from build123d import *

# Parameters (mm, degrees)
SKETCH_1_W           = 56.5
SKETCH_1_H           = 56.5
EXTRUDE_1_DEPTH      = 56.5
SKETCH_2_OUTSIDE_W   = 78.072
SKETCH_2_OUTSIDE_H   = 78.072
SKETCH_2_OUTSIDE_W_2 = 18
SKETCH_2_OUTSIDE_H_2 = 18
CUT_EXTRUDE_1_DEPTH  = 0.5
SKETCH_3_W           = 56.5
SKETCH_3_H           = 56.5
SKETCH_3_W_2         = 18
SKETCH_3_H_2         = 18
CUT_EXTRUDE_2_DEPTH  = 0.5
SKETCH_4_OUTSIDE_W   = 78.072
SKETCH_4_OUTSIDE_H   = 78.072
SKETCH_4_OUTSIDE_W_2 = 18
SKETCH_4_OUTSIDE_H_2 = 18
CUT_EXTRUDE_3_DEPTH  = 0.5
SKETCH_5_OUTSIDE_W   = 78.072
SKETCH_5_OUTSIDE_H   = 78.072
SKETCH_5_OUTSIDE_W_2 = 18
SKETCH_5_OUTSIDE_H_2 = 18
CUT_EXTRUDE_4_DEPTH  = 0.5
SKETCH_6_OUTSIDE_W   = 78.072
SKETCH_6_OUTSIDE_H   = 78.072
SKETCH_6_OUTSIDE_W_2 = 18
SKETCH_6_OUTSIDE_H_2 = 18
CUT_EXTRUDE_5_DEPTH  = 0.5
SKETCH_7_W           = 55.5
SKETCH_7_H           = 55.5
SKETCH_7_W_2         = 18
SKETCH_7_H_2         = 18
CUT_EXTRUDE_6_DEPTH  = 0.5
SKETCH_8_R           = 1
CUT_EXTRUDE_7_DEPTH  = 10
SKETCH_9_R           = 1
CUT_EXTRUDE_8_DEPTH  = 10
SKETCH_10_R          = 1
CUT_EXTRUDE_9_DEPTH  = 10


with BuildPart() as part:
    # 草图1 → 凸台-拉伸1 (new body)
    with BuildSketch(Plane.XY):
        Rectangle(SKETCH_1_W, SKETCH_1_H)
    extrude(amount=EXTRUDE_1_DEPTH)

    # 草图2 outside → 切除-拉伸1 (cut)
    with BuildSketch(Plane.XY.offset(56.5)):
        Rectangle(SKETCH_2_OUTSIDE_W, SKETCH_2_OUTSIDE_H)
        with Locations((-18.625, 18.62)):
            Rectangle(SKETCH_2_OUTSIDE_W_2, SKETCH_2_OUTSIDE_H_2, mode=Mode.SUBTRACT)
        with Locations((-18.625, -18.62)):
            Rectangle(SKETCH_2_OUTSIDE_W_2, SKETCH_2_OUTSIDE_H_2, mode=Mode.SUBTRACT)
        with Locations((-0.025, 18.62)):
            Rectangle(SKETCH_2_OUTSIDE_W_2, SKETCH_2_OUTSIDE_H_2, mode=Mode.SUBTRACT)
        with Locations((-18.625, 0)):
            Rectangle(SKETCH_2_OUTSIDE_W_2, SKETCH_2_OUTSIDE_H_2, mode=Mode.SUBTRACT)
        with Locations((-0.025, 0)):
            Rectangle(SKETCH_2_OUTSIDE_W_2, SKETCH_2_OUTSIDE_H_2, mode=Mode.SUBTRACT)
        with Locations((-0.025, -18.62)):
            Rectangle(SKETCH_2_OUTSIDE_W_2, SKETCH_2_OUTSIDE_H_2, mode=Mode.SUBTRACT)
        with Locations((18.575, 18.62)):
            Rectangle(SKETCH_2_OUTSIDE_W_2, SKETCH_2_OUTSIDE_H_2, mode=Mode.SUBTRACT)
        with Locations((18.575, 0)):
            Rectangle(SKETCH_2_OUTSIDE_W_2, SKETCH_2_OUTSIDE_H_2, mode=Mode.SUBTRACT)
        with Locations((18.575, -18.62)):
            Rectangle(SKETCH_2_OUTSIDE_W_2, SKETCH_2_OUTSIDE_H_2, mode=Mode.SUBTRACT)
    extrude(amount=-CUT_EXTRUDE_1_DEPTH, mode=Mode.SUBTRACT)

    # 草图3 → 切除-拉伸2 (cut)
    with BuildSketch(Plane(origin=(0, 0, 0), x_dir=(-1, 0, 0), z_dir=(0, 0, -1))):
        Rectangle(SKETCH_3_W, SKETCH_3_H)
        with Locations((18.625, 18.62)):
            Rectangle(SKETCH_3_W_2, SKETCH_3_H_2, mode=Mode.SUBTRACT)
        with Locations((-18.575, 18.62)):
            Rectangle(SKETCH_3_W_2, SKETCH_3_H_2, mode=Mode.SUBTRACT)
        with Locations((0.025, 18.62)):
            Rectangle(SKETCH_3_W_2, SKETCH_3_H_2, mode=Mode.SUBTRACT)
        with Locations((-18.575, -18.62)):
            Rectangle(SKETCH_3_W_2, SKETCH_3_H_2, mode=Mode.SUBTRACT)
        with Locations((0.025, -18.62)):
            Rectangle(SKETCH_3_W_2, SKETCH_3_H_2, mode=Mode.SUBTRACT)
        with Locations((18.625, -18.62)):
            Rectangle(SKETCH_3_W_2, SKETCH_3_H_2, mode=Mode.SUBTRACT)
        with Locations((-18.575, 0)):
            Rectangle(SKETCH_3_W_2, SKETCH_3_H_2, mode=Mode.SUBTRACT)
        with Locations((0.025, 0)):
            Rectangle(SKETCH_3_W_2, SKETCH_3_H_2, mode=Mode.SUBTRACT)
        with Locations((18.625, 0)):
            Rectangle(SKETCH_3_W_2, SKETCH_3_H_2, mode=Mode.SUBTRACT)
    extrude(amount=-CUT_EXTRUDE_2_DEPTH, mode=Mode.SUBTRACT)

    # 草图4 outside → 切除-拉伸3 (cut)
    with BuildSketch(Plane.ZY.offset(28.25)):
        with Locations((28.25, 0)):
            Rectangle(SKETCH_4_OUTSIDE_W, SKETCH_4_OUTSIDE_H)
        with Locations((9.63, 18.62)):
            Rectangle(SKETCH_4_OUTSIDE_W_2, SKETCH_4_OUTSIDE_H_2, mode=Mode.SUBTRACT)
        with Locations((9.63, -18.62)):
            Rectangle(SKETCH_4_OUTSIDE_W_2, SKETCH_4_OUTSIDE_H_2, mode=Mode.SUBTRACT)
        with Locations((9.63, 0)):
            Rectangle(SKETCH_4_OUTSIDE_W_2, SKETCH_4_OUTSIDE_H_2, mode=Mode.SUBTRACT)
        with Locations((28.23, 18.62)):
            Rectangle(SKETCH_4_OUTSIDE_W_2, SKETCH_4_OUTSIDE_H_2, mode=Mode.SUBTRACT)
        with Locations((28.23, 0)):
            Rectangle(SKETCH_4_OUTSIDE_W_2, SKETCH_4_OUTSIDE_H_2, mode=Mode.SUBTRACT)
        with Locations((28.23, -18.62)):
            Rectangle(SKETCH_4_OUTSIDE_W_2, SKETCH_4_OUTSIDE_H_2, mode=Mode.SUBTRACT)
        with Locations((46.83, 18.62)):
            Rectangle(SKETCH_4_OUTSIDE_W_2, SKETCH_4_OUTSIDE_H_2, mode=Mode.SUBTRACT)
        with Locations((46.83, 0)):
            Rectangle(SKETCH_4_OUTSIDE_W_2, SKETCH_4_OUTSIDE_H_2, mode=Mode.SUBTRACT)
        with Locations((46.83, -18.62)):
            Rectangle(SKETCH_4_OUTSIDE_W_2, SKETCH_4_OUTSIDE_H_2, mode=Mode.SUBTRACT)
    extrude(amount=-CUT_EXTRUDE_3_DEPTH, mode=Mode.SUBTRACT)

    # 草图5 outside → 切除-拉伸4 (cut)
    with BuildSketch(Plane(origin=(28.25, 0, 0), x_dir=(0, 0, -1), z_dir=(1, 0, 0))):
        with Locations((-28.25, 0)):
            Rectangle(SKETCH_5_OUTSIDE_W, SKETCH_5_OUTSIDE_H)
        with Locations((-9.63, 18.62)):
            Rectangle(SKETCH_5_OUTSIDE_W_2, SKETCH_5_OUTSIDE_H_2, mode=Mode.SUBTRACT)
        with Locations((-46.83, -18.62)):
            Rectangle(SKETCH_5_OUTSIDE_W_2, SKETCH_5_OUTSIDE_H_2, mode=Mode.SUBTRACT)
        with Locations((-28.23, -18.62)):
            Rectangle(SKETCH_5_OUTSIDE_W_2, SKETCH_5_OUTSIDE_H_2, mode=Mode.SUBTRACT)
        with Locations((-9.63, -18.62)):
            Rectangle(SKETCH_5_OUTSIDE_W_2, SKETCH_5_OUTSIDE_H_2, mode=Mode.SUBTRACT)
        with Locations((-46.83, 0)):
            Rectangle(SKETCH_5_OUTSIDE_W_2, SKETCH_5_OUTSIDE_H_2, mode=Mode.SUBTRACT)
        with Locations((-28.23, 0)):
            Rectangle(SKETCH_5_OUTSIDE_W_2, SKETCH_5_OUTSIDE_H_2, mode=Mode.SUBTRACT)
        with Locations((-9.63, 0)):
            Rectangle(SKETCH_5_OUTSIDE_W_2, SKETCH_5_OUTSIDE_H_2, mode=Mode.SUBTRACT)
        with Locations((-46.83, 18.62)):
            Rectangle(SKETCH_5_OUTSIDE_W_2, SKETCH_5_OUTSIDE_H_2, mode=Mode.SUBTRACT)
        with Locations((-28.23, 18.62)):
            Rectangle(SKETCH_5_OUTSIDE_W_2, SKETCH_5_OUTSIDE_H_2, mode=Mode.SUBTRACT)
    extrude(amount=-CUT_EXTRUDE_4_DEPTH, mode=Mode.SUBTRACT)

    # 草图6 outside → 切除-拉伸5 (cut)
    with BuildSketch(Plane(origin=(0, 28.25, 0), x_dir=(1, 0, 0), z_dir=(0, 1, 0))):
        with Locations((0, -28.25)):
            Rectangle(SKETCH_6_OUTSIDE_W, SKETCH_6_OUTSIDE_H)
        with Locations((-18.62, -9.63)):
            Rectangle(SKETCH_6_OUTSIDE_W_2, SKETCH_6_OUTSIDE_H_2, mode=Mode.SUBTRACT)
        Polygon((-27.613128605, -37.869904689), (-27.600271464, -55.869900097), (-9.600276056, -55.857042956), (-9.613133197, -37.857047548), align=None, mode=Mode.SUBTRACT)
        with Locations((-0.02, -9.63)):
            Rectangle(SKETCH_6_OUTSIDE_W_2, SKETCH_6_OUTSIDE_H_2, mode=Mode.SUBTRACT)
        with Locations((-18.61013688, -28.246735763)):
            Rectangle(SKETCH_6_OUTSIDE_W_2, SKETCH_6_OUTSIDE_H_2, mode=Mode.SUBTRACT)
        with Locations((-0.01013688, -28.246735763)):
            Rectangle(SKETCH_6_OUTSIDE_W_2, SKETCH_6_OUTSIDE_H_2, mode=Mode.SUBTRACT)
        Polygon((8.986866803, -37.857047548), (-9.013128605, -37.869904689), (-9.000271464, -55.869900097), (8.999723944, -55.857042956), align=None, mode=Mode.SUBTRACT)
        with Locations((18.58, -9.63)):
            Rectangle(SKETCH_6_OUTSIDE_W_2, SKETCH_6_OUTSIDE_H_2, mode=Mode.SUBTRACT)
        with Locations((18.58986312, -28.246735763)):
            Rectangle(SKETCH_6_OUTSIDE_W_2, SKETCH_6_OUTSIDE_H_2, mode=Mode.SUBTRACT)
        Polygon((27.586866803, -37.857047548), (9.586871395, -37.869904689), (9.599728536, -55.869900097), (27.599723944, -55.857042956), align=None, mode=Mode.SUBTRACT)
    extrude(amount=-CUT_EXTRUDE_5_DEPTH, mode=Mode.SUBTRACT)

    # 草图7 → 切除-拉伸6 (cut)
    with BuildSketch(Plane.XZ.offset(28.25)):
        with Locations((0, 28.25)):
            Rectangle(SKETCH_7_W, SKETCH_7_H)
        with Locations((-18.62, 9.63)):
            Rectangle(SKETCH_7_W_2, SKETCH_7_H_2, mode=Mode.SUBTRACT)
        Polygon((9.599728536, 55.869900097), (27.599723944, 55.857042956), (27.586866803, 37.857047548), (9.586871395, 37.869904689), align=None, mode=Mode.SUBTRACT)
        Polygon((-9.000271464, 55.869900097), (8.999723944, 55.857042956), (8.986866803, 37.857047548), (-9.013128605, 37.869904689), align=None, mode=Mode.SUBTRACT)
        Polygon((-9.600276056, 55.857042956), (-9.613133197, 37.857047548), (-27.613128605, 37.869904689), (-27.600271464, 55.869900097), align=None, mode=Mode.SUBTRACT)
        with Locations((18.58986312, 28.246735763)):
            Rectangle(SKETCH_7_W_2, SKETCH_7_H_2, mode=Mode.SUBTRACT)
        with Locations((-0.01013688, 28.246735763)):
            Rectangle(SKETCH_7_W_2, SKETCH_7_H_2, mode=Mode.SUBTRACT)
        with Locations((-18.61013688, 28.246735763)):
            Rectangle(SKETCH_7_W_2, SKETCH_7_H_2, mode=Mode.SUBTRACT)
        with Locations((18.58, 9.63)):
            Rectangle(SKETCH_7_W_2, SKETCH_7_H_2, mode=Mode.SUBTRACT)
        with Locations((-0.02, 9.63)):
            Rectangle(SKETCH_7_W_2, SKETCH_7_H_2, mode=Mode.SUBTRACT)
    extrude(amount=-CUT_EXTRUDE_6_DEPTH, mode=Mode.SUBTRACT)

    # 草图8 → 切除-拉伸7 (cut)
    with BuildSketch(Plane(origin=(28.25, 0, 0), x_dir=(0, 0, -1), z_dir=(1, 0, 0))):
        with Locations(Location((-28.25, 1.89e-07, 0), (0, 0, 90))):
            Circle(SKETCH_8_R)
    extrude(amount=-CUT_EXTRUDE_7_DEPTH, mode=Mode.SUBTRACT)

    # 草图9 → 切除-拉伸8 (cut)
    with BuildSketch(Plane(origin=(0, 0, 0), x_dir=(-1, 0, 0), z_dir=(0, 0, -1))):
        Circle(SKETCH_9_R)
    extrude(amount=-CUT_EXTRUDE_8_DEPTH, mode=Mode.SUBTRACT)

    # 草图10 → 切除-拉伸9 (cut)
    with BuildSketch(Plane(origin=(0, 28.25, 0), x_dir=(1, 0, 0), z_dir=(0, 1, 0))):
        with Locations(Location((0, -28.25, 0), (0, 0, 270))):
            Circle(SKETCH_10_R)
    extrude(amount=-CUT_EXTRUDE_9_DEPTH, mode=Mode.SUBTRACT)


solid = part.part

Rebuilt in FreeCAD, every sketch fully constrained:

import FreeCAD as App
import Part
import Sketcher
from FreeCAD import Vector
Q = App.Units.Quantity


def add_polygon(sketch, points):
    """Adds a closed chain of lines whose ends are joined by coincident constraints."""
    first, n = sketch.GeometryCount, len(points)
    for a, b in zip(points, points[1:] + points[:1]):
        sketch.addGeometry(Part.LineSegment(App.Vector(*a, 0), App.Vector(*b, 0)), False)
    for i in range(n):
        sketch.addConstraint(Sketcher.Constraint("Coincident", first + i, 2, first + (i + 1) % n, 1))

doc = App.newDocument("Part")
body = doc.addObject("PartDesign::Body", "Body")

# Sketch on XY plane
sketch1 = body.newObject("Sketcher::SketchObject", "Sketch")
sketch1.AttachmentSupport = (doc.getObject("XY_Plane"), [""])
sketch1.MapMode = "FlatFace"
add_polygon(sketch1, [(-28, 28), (-28, -28), (28, -28), (28, 28)])  # lines 0-3
sketch1.addConstraint([
    Sketcher.Constraint("Vertical", 0),
    Sketcher.Constraint("Horizontal", 1),
    Sketcher.Constraint("Vertical", 2),
    Sketcher.Constraint("Horizontal", 3),
    Sketcher.Constraint("Symmetric", 0, 2, 2, 2, -1, 1),
    Sketcher.Constraint("Equal", 3, 0),
    Sketcher.Constraint("DistanceX", 1, 1, 1, 2, Q("56.5 mm")),
])
pad1 = body.newObject("PartDesign::Pad", "Pad")
pad1.Profile = sketch1
pad1.Length = 56.5

# Sketch on XY plane
sketch2 = body.newObject("Sketcher::SketchObject", "Sketch001")
sketch2.AttachmentSupport = (doc.getObject("XY_Plane"), [""])
sketch2.MapMode = "FlatFace"
sketch2.AttachmentOffset = App.Placement(Vector(0, 0, 56.5), App.Rotation())
add_polygon(sketch2, [(-39, 39), (-39, -39), (39, -39), (39, 39)])  # lines 0-3
add_polygon(sketch2, [(-10, -28), (-28, -28), (-28, -10), (-10, -10)])  # lines 4-7
add_polygon(sketch2, [(-10, -9), (-28, -9), (-28, 9), (-10, 9)])  # lines 8-11
add_polygon(sketch2, [(9, -28), (-9, -28), (-9, -10), (9, -10)])  # lines 12-15
add_polygon(sketch2, [(28, -28), (10, -28), (10, -10), (28, -10)])  # lines 16-19
add_polygon(sketch2, [(9, -9), (-9, -9), (-9, 9), (9, 9)])  # lines 20-23
add_polygon(sketch2, [(28, -9), (10, -9), (10, 9), (28, 9)])  # lines 24-27
add_polygon(sketch2, [(-10, 10), (-28, 10), (-28, 28), (-10, 28)])  # lines 28-31
add_polygon(sketch2, [(9, 10), (-9, 10), (-9, 28), (9, 28)])  # lines 32-35
add_polygon(sketch2, [(28, 10), (10, 10), (10, 28), (28, 28)])  # lines 36-39
sketch2.addConstraint([
    Sketcher.Constraint("Vertical", 0),
    Sketcher.Constraint("Horizontal", 1),
    Sketcher.Constraint("Vertical", 2),
    Sketcher.Constraint("Horizontal", 3),
    Sketcher.Constraint("Horizontal", 4),
    Sketcher.Constraint("Vertical", 5),
    Sketcher.Constraint("Horizontal", 6),
    Sketcher.Constraint("Vertical", 7),
    Sketcher.Constraint("Horizontal", 8),
    Sketcher.Constraint("Vertical", 9),
    Sketcher.Constraint("Horizontal", 10),
    Sketcher.Constraint("Vertical", 11),
    Sketcher.Constraint("Horizontal", 12),
    Sketcher.Constraint("Vertical", 13),
    Sketcher.Constraint("Horizontal", 14),
    Sketcher.Constraint("Vertical", 15),
    Sketcher.Constraint("Horizontal", 16),
    Sketcher.Constraint("Vertical", 17),
    Sketcher.Constraint("Horizontal", 18),
    Sketcher.Constraint("Vertical", 19),
    Sketcher.Constraint("Horizontal", 20),
    Sketcher.Constraint("Vertical", 21),
    Sketcher.Constraint("Horizontal", 22),
    Sketcher.Constraint("Vertical", 23),
    Sketcher.Constraint("Horizontal", 24),
    Sketcher.Constraint("Vertical", 25),
    Sketcher.Constraint("Horizontal", 26),
    Sketcher.Constraint("Vertical", 27),
    Sketcher.Constraint("Horizontal", 28),
    Sketcher.Constraint("Vertical", 29),
    Sketcher.Constraint("Horizontal", 30),
    Sketcher.Constraint("Vertical", 31),
    Sketcher.Constraint("Horizontal", 32),
    Sketcher.Constraint("Vertical", 33),
    Sketcher.Constraint("Horizontal", 34),
    Sketcher.Constraint("Vertical", 35),
    Sketcher.Constraint("Horizontal", 36),
    Sketcher.Constraint("Vertical", 37),
    Sketcher.Constraint("Horizontal", 38),
    Sketcher.Constraint("Vertical", 39),
    Sketcher.Constraint("Symmetric", 0, 2, 2, 2, -1, 1),
    Sketcher.Constraint("Symmetric", 5, 2, 28, 2, -1),
    Sketcher.Constraint("Symmetric", 7, 2, 30, 2, -1),
    Sketcher.Constraint("Symmetric", 13, 2, 32, 2, -1),
    Sketcher.Constraint("Symmetric", 15, 2, 34, 2, -1),
    Sketcher.Constraint("Symmetric", 17, 2, 36, 2, -1),
    Sketcher.Constraint("Symmetric", 19, 2, 38, 2, -1),
    Sketcher.Constraint("Horizontal", 7, 2, 12, 2),
    Sketcher.Constraint("Horizontal", 6, 2, 13, 2),
    Sketcher.Constraint("Horizontal", 15, 2, 16, 2),
    Sketcher.Constraint("Horizontal", 14, 2, 17, 2),
    Sketcher.Constraint("Horizontal", 11, 2, 20, 2),
    Sketcher.Constraint("Horizontal", 10, 2, 21, 2),
    Sketcher.Constraint("Horizontal", 23, 2, 24, 2),
    Sketcher.Constraint("Horizontal", 22, 2, 25, 2),
    Sketcher.Constraint("Vertical", 5, 2, 8, 2),
    Sketcher.Constraint("Vertical", 7, 2, 10, 2),
    Sketcher.Constraint("Vertical", 13, 2, 20, 2),
    Sketcher.Constraint("Vertical", 15, 2, 22, 2),
    Sketcher.Constraint("Vertical", 17, 2, 24, 2),
    Sketcher.Constraint("Vertical", 19, 2, 26, 2),
    Sketcher.Constraint("Equal", 10, 12),
    Sketcher.Constraint("Equal", 14, 16),
    Sketcher.Constraint("Equal", 3, 0),
    Sketcher.Constraint("Equal", 38, 5),
    Sketcher.Constraint("Equal", 7, 9),
    Sketcher.Constraint("DistanceX", 4, 2, 4, 1, Q("18 mm")),
    Sketcher.Constraint("DistanceY", 8, 2, -1, 1, Q("9 mm")),
    Sketcher.Constraint("DistanceX", 7, 2, 12, 2, Q("0.6 mm")),
    Sketcher.Constraint("DistanceX", 15, 2, 16, 2, Q("0.6 mm")),
    Sketcher.Constraint("DistanceX", 1, 1, 1, 2, Q("78.072 mm")),
    Sketcher.Constraint("DistanceY", 4, 2, -1, 1, Q("27.62 mm")),
    Sketcher.Constraint("DistanceX", 4, 2, -1, 1, Q("27.625 mm")),
])
pocket1 = body.newObject("PartDesign::Pocket", "Pocket")
pocket1.Profile = sketch2
pocket1.Length = 0.5

# Sketch on XY plane
sketch3 = body.newObject("Sketcher::SketchObject", "Sketch002")
sketch3.AttachmentSupport = (doc.getObject("XY_Plane"), [""])
sketch3.MapMode = "FlatFace"
add_polygon(sketch3, [(28, 28), (28, -28), (-28, -28), (-28, 28)])  # lines 0-3
add_polygon(sketch3, [(10, -28), (28, -28), (28, -10), (10, -10)])  # lines 4-7
add_polygon(sketch3, [(10, -9), (28, -9), (28, 9), (10, 9)])  # lines 8-11
add_polygon(sketch3, [(-9, -28), (9, -28), (9, -10), (-9, -10)])  # lines 12-15
add_polygon(sketch3, [(-28, -28), (-10, -28), (-10, -10), (-28, -10)])  # lines 16-19
add_polygon(sketch3, [(-9, -9), (9, -9), (9, 9), (-9, 9)])  # lines 20-23
add_polygon(sketch3, [(-28, -9), (-10, -9), (-10, 9), (-28, 9)])  # lines 24-27
add_polygon(sketch3, [(10, 10), (28, 10), (28, 28), (10, 28)])  # lines 28-31
add_polygon(sketch3, [(-9, 10), (9, 10), (9, 28), (-9, 28)])  # lines 32-35
add_polygon(sketch3, [(-28, 10), (-10, 10), (-10, 28), (-28, 28)])  # lines 36-39
sketch3.addConstraint([
    Sketcher.Constraint("Vertical", 0),
    Sketcher.Constraint("Horizontal", 1),
    Sketcher.Constraint("Vertical", 2),
    Sketcher.Constraint("Horizontal", 3),
    Sketcher.Constraint("Horizontal", 4),
    Sketcher.Constraint("Vertical", 5),
    Sketcher.Constraint("Horizontal", 6),
    Sketcher.Constraint("Vertical", 7),
    Sketcher.Constraint("Horizontal", 8),
    Sketcher.Constraint("Vertical", 9),
    Sketcher.Constraint("Horizontal", 10),
    Sketcher.Constraint("Vertical", 11),
    Sketcher.Constraint("Horizontal", 12),
    Sketcher.Constraint("Vertical", 13),
    Sketcher.Constraint("Horizontal", 14),
    Sketcher.Constraint("Vertical", 15),
    Sketcher.Constraint("Horizontal", 16),
    Sketcher.Constraint("Vertical", 17),
    Sketcher.Constraint("Horizontal", 18),
    Sketcher.Constraint("Vertical", 19),
    Sketcher.Constraint("Horizontal", 20),
    Sketcher.Constraint("Vertical", 21),
    Sketcher.Constraint("Horizontal", 22),
    Sketcher.Constraint("Vertical", 23),
    Sketcher.Constraint("Horizontal", 24),
    Sketcher.Constraint("Vertical", 25),
    Sketcher.Constraint("Horizontal", 26),
    Sketcher.Constraint("Vertical", 27),
    Sketcher.Constraint("Horizontal", 28),
    Sketcher.Constraint("Vertical", 29),
    Sketcher.Constraint("Horizontal", 30),
    Sketcher.Constraint("Vertical", 31),
    Sketcher.Constraint("Horizontal", 32),
    Sketcher.Constraint("Vertical", 33),
    Sketcher.Constraint("Horizontal", 34),
    Sketcher.Constraint("Vertical", 35),
    Sketcher.Constraint("Horizontal", 36),
    Sketcher.Constraint("Vertical", 37),
    Sketcher.Constraint("Horizontal", 38),
    Sketcher.Constraint("Vertical", 39),
    Sketcher.Constraint("Symmetric", 0, 2, 2, 2, -1, 1),
    Sketcher.Constraint("Symmetric", 5, 2, 28, 2, -1),
    Sketcher.Constraint("Symmetric", 7, 2, 30, 2, -1),
    Sketcher.Constraint("Symmetric", 13, 2, 32, 2, -1),
    Sketcher.Constraint("Symmetric", 15, 2, 34, 2, -1),
    Sketcher.Constraint("Symmetric", 17, 2, 36, 2, -1),
    Sketcher.Constraint("Symmetric", 19, 2, 38, 2, -1),
    Sketcher.Constraint("Horizontal", 7, 2, 12, 2),
    Sketcher.Constraint("Horizontal", 6, 2, 13, 2),
    Sketcher.Constraint("Horizontal", 15, 2, 16, 2),
    Sketcher.Constraint("Horizontal", 14, 2, 17, 2),
    Sketcher.Constraint("Horizontal", 11, 2, 20, 2),
    Sketcher.Constraint("Horizontal", 10, 2, 21, 2),
    Sketcher.Constraint("Horizontal", 23, 2, 24, 2),
    Sketcher.Constraint("Horizontal", 22, 2, 25, 2),
    Sketcher.Constraint("Vertical", 5, 2, 8, 2),
    Sketcher.Constraint("Vertical", 7, 2, 10, 2),
    Sketcher.Constraint("Vertical", 13, 2, 20, 2),
    Sketcher.Constraint("Vertical", 15, 2, 22, 2),
    Sketcher.Constraint("Vertical", 17, 2, 24, 2),
    Sketcher.Constraint("Vertical", 19, 2, 26, 2),
    Sketcher.Constraint("Equal", 10, 12),
    Sketcher.Constraint("Equal", 14, 16),
    Sketcher.Constraint("Equal", 3, 0),
    Sketcher.Constraint("Equal", 38, 5),
    Sketcher.Constraint("Equal", 7, 9),
    Sketcher.Constraint("DistanceX", 4, 1, 4, 2, Q("18 mm")),
    Sketcher.Constraint("DistanceX", 1, 2, 1, 1, Q("56.5 mm")),
    Sketcher.Constraint("DistanceY", 8, 2, -1, 1, Q("9 mm")),
    Sketcher.Constraint("DistanceX", 12, 2, 7, 2, Q("0.6 mm")),
    Sketcher.Constraint("DistanceX", 16, 2, 15, 2, Q("0.6 mm")),
    Sketcher.Constraint("DistanceY", 4, 2, -1, 1, Q("27.62 mm")),
    Sketcher.Constraint("DistanceX", -1, 1, 4, 2, Q("27.575 mm")),
])
pocket2 = body.newObject("PartDesign::Pocket", "Pocket001")
pocket2.Profile = sketch3
pocket2.Length = 0.5
pocket2.Reversed = True

# Sketch on YZ plane
sketch4 = body.newObject("Sketcher::SketchObject", "Sketch003")
sketch4.AttachmentSupport = (doc.getObject("YZ_Plane"), [""])
sketch4.MapMode = "FlatFace"
sketch4.AttachmentOffset = App.Placement(Vector(0, 0, -28.25), App.Rotation())
add_polygon(sketch4, [(39, -11), (-39, -11), (-39, 67), (39, 67)])  # lines 0-3
add_polygon(sketch4, [(-28, 19), (-28, 1), (-10, 1), (-10, 19)])  # lines 4-7
add_polygon(sketch4, [(-9, 19), (-9, 1), (9, 1), (9, 19)])  # lines 8-11
add_polygon(sketch4, [(-28, 37), (-28, 19), (-10, 19), (-10, 37)])  # lines 12-15
add_polygon(sketch4, [(-28, 56), (-28, 38), (-10, 38), (-10, 56)])  # lines 16-19
add_polygon(sketch4, [(-9, 37), (-9, 19), (9, 19), (9, 37)])  # lines 20-23
add_polygon(sketch4, [(-9, 56), (-9, 38), (9, 38), (9, 56)])  # lines 24-27
add_polygon(sketch4, [(10, 19), (10, 1), (28, 1), (28, 19)])  # lines 28-31
add_polygon(sketch4, [(10, 37), (10, 19), (28, 19), (28, 37)])  # lines 32-35
add_polygon(sketch4, [(10, 56), (10, 38), (28, 38), (28, 56)])  # lines 36-39
sketch4.addConstraint([
    Sketcher.Constraint("Horizontal", 0),
    Sketcher.Constraint("Vertical", 1),
    Sketcher.Constraint("Horizontal", 2),
    Sketcher.Constraint("Vertical", 3),
    Sketcher.Constraint("Vertical", 4),
    Sketcher.Constraint("Horizontal", 5),
    Sketcher.Constraint("Vertical", 6),
    Sketcher.Constraint("Horizontal", 7),
    Sketcher.Constraint("Vertical", 8),
    Sketcher.Constraint("Horizontal", 9),
    Sketcher.Constraint("Vertical", 10),
    Sketcher.Constraint("Horizontal", 11),
    Sketcher.Constraint("Vertical", 12),
    Sketcher.Constraint("Horizontal", 13),
    Sketcher.Constraint("Vertical", 14),
    Sketcher.Constraint("Horizontal", 15),
    Sketcher.Constraint("Vertical", 16),
    Sketcher.Constraint("Horizontal", 17),
    Sketcher.Constraint("Vertical", 18),
    Sketcher.Constraint("Horizontal", 19),
    Sketcher.Constraint("Vertical", 20),
    Sketcher.Constraint("Horizontal", 21),
    Sketcher.Constraint("Vertical", 22),
    Sketcher.Constraint("Horizontal", 23),
    Sketcher.Constraint("Vertical", 24),
    Sketcher.Constraint("Horizontal", 25),
    Sketcher.Constraint("Vertical", 26),
    Sketcher.Constraint("Horizontal", 27),
    Sketcher.Constraint("Vertical", 28),
    Sketcher.Constraint("Horizontal", 29),
    Sketcher.Constraint("Vertical", 30),
    Sketcher.Constraint("Horizontal", 31),
    Sketcher.Constraint("Vertical", 32),
    Sketcher.Constraint("Horizontal", 33),
    Sketcher.Constraint("Vertical", 34),
    Sketcher.Constraint("Horizontal", 35),
    Sketcher.Constraint("Vertical", 36),
    Sketcher.Constraint("Horizontal", 37),
    Sketcher.Constraint("Vertical", 38),
    Sketcher.Constraint("Horizontal", 39),
    Sketcher.Constraint("Symmetric", 5, 2, 28, 2, -2),
    Sketcher.Constraint("Symmetric", 7, 2, 30, 2, -2),
    Sketcher.Constraint("Symmetric", 13, 2, 32, 2, -2),
    Sketcher.Constraint("Symmetric", 15, 2, 34, 2, -2),
    Sketcher.Constraint("Symmetric", 17, 2, 36, 2, -2),
    Sketcher.Constraint("Symmetric", 19, 2, 38, 2, -2),
    Sketcher.Constraint("Horizontal", 5, 2, 8, 2),
    Sketcher.Constraint("Horizontal", 7, 2, 10, 2),
    Sketcher.Constraint("Horizontal", 13, 2, 20, 2),
    Sketcher.Constraint("Horizontal", 15, 2, 22, 2),
    Sketcher.Constraint("Horizontal", 17, 2, 24, 2),
    Sketcher.Constraint("Horizontal", 19, 2, 26, 2),
    Sketcher.Constraint("Vertical", 7, 2, 12, 2),
    Sketcher.Constraint("Vertical", 6, 2, 13, 2),
    Sketcher.Constraint("Vertical", 15, 2, 16, 2),
    Sketcher.Constraint("Vertical", 14, 2, 17, 2),
    Sketcher.Constraint("Vertical", 11, 2, 20, 2),
    Sketcher.Constraint("Vertical", 10, 2, 21, 2),
    Sketcher.Constraint("Vertical", 23, 2, 24, 2),
    Sketcher.Constraint("Vertical", 22, 2, 25, 2),
    Sketcher.Constraint("Equal", 7, 9),
    Sketcher.Constraint("Equal", 2, 1),
    Sketcher.Constraint("Equal", 39, 4),
    Sketcher.Constraint("Equal", 10, 12),
    Sketcher.Constraint("Equal", 14, 16),
    Sketcher.Constraint("DistanceX", 5, 1, 5, 2, Q("18 mm")),
    Sketcher.Constraint("DistanceX", 8, 2, -1, 1, Q("9 mm")),
    Sketcher.Constraint("DistanceY", 7, 2, 12, 2, Q("0.6 mm")),
    Sketcher.Constraint("DistanceY", 15, 2, 16, 2, Q("0.6 mm")),
    Sketcher.Constraint("DistanceX", 0, 2, 0, 1, Q("78.072 mm")),
    Sketcher.Constraint("DistanceX", 4, 2, -1, 1, Q("27.62 mm")),
    Sketcher.Constraint("DistanceY", -1, 1, 4, 2, Q("0.63 mm")),
    Sketcher.Constraint("DistanceX", 0, 2, -1, 1, Q("39.036 mm")),
    Sketcher.Constraint("DistanceY", 0, 2, -1, 1, Q("10.786 mm")),
])
pocket3 = body.newObject("PartDesign::Pocket", "Pocket002")
pocket3.Profile = sketch4
pocket3.Length = 0.5
pocket3.Reversed = True

# Sketch on YZ plane
sketch5 = body.newObject("Sketcher::SketchObject", "Sketch004")
sketch5.AttachmentSupport = (doc.getObject("YZ_Plane"), [""])
sketch5.MapMode = "FlatFace"
sketch5.AttachmentOffset = App.Placement(Vector(0, 0, 28.25), App.Rotation())
add_polygon(sketch5, [(39, 67), (-39, 67), (-39, -11), (39, -11)])  # lines 0-3
add_polygon(sketch5, [(-28, 38), (-28, 56), (-10, 56), (-10, 38)])  # lines 4-7
add_polygon(sketch5, [(-9, 38), (-9, 56), (9, 56), (9, 38)])  # lines 8-11
add_polygon(sketch5, [(-28, 19), (-28, 37), (-10, 37), (-10, 19)])  # lines 12-15
add_polygon(sketch5, [(-28, 1), (-28, 19), (-10, 19), (-10, 1)])  # lines 16-19
add_polygon(sketch5, [(-9, 19), (-9, 37), (9, 37), (9, 19)])  # lines 20-23
add_polygon(sketch5, [(-9, 1), (-9, 19), (9, 19), (9, 1)])  # lines 24-27
add_polygon(sketch5, [(10, 38), (10, 56), (28, 56), (28, 38)])  # lines 28-31
add_polygon(sketch5, [(10, 19), (10, 37), (28, 37), (28, 19)])  # lines 32-35
add_polygon(sketch5, [(10, 1), (10, 19), (28, 19), (28, 1)])  # lines 36-39
sketch5.addConstraint([
    Sketcher.Constraint("Horizontal", 0),
    Sketcher.Constraint("Vertical", 1),
    Sketcher.Constraint("Horizontal", 2),
    Sketcher.Constraint("Vertical", 3),
    Sketcher.Constraint("Vertical", 4),
    Sketcher.Constraint("Horizontal", 5),
    Sketcher.Constraint("Vertical", 6),
    Sketcher.Constraint("Horizontal", 7),
    Sketcher.Constraint("Vertical", 8),
    Sketcher.Constraint("Horizontal", 9),
    Sketcher.Constraint("Vertical", 10),
    Sketcher.Constraint("Horizontal", 11),
    Sketcher.Constraint("Vertical", 12),
    Sketcher.Constraint("Horizontal", 13),
    Sketcher.Constraint("Vertical", 14),
    Sketcher.Constraint("Horizontal", 15),
    Sketcher.Constraint("Vertical", 16),
    Sketcher.Constraint("Horizontal", 17),
    Sketcher.Constraint("Vertical", 18),
    Sketcher.Constraint("Horizontal", 19),
    Sketcher.Constraint("Vertical", 20),
    Sketcher.Constraint("Horizontal", 21),
    Sketcher.Constraint("Vertical", 22),
    Sketcher.Constraint("Horizontal", 23),
    Sketcher.Constraint("Vertical", 24),
    Sketcher.Constraint("Horizontal", 25),
    Sketcher.Constraint("Vertical", 26),
    Sketcher.Constraint("Horizontal", 27),
    Sketcher.Constraint("Vertical", 28),
    Sketcher.Constraint("Horizontal", 29),
    Sketcher.Constraint("Vertical", 30),
    Sketcher.Constraint("Horizontal", 31),
    Sketcher.Constraint("Vertical", 32),
    Sketcher.Constraint("Horizontal", 33),
    Sketcher.Constraint("Vertical", 34),
    Sketcher.Constraint("Horizontal", 35),
    Sketcher.Constraint("Vertical", 36),
    Sketcher.Constraint("Horizontal", 37),
    Sketcher.Constraint("Vertical", 38),
    Sketcher.Constraint("Horizontal", 39),
    Sketcher.Constraint("Symmetric", 5, 2, 28, 2, -2),
    Sketcher.Constraint("Symmetric", 7, 2, 30, 2, -2),
    Sketcher.Constraint("Symmetric", 13, 2, 32, 2, -2),
    Sketcher.Constraint("Symmetric", 15, 2, 34, 2, -2),
    Sketcher.Constraint("Symmetric", 17, 2, 36, 2, -2),
    Sketcher.Constraint("Symmetric", 19, 2, 38, 2, -2),
    Sketcher.Constraint("Horizontal", 5, 2, 8, 2),
    Sketcher.Constraint("Horizontal", 7, 2, 10, 2),
    Sketcher.Constraint("Horizontal", 13, 2, 20, 2),
    Sketcher.Constraint("Horizontal", 15, 2, 22, 2),
    Sketcher.Constraint("Horizontal", 17, 2, 24, 2),
    Sketcher.Constraint("Horizontal", 19, 2, 26, 2),
    Sketcher.Constraint("Vertical", 7, 2, 12, 2),
    Sketcher.Constraint("Vertical", 6, 2, 13, 2),
    Sketcher.Constraint("Vertical", 15, 2, 16, 2),
    Sketcher.Constraint("Vertical", 14, 2, 17, 2),
    Sketcher.Constraint("Vertical", 11, 2, 20, 2),
    Sketcher.Constraint("Vertical", 10, 2, 21, 2),
    Sketcher.Constraint("Vertical", 23, 2, 24, 2),
    Sketcher.Constraint("Vertical", 22, 2, 25, 2),
    Sketcher.Constraint("Equal", 7, 9),
    Sketcher.Constraint("Equal", 2, 1),
    Sketcher.Constraint("Equal", 39, 4),
    Sketcher.Constraint("Equal", 10, 12),
    Sketcher.Constraint("Equal", 14, 16),
    Sketcher.Constraint("DistanceX", 5, 1, 5, 2, Q("18 mm")),
    Sketcher.Constraint("DistanceX", 8, 2, -1, 1, Q("9 mm")),
    Sketcher.Constraint("DistanceY", 12, 2, 7, 2, Q("0.6 mm")),
    Sketcher.Constraint("DistanceY", 16, 2, 15, 2, Q("0.6 mm")),
    Sketcher.Constraint("DistanceX", 0, 2, 0, 1, Q("78.072 mm")),
    Sketcher.Constraint("DistanceX", 4, 2, -1, 1, Q("27.62 mm")),
    Sketcher.Constraint("DistanceY", -1, 1, 4, 2, Q("55.83 mm")),
    Sketcher.Constraint("DistanceX", 0, 2, -1, 1, Q("39.036 mm")),
    Sketcher.Constraint("DistanceY", -1, 1, 0, 2, Q("67.286 mm")),
])
pocket4 = body.newObject("PartDesign::Pocket", "Pocket003")
pocket4.Profile = sketch5
pocket4.Length = 0.5

# Sketch on XZ plane
sketch6 = body.newObject("Sketcher::SketchObject", "Sketch005")
sketch6.AttachmentSupport = (doc.getObject("XZ_Plane"), [""])
sketch6.MapMode = "FlatFace"
sketch6.AttachmentOffset = App.Placement(Vector(0, 0, -28.25), App.Rotation())
add_polygon(sketch6, [(-39, -11), (-39, 67), (39, 67), (39, -11)])  # lines 0-3
add_polygon(sketch6, [(-28, 56), (-28, 38), (-10, 38), (-10, 56)])  # lines 4-7
add_polygon(sketch6, [(-9, 38), (9, 38), (9, 56), (-9, 56)])  # lines 8-11
add_polygon(sketch6, [(10, 38), (28, 38), (28, 56), (10, 56)])  # lines 12-15
add_polygon(sketch6, [(-10, 37), (-28, 37), (-28, 19), (-10, 19)])  # lines 16-19
add_polygon(sketch6, [(-10, 19), (-28, 19), (-28, 1), (-10, 1)])  # lines 20-23
add_polygon(sketch6, [(9, 19), (-9, 19), (-9, 1), (9, 1)])  # lines 24-27
add_polygon(sketch6, [(9, 37), (-9, 37), (-9, 19), (9, 19)])  # lines 28-31
add_polygon(sketch6, [(28, 37), (10, 37), (10, 19), (28, 19)])  # lines 32-35
add_polygon(sketch6, [(28, 19), (10, 19), (10, 1), (28, 1)])  # lines 36-39
sketch6.addConstraint([
    Sketcher.Constraint("Vertical", 0),
    Sketcher.Constraint("Horizontal", 1),
    Sketcher.Constraint("Vertical", 2),
    Sketcher.Constraint("Horizontal", 3),
    Sketcher.Constraint("Horizontal", 16),
    Sketcher.Constraint("Vertical", 17),
    Sketcher.Constraint("Horizontal", 18),
    Sketcher.Constraint("Vertical", 19),
    Sketcher.Constraint("Horizontal", 20),
    Sketcher.Constraint("Vertical", 21),
    Sketcher.Constraint("Horizontal", 22),
    Sketcher.Constraint("Vertical", 23),
    Sketcher.Constraint("Horizontal", 24),
    Sketcher.Constraint("Vertical", 25),
    Sketcher.Constraint("Horizontal", 26),
    Sketcher.Constraint("Vertical", 27),
    Sketcher.Constraint("Horizontal", 28),
    Sketcher.Constraint("Vertical", 29),
    Sketcher.Constraint("Horizontal", 30),
    Sketcher.Constraint("Vertical", 31),
    Sketcher.Constraint("Horizontal", 32),
    Sketcher.Constraint("Vertical", 33),
    Sketcher.Constraint("Horizontal", 34),
    Sketcher.Constraint("Vertical", 35),
    Sketcher.Constraint("Horizontal", 36),
    Sketcher.Constraint("Vertical", 37),
    Sketcher.Constraint("Horizontal", 38),
    Sketcher.Constraint("Vertical", 39),
    Sketcher.Constraint("Perpendicular", 4, 5),
    Sketcher.Constraint("Perpendicular", 5, 6),
    Sketcher.Constraint("Perpendicular", 6, 7),
    Sketcher.Constraint("Parallel", 7, 8),
    Sketcher.Constraint("Perpendicular", 8, 9),
    Sketcher.Constraint("Perpendicular", 9, 10),
    Sketcher.Constraint("Perpendicular", 10, 11),
    Sketcher.Constraint("Perpendicular", 11, 12),
    Sketcher.Constraint("Perpendicular", 12, 13),
    Sketcher.Constraint("Perpendicular", 13, 14),
    Sketcher.Constraint("Perpendicular", 14, 15),
    Sketcher.Constraint("Horizontal", 5, 2, 8, 2),
    Sketcher.Constraint("Horizontal", 6, 2, 9, 2),
    Sketcher.Constraint("Horizontal", 8, 2, 12, 2),
    Sketcher.Constraint("Horizontal", 9, 2, 13, 2),
    Sketcher.Constraint("Horizontal", 23, 2, 24, 2),
    Sketcher.Constraint("Horizontal", 22, 2, 25, 2),
    Sketcher.Constraint("Horizontal", 19, 2, 28, 2),
    Sketcher.Constraint("Horizontal", 18, 2, 29, 2),
    Sketcher.Constraint("Horizontal", 31, 2, 32, 2),
    Sketcher.Constraint("Horizontal", 30, 2, 33, 2),
    Sketcher.Constraint("Horizontal", 27, 2, 36, 2),
    Sketcher.Constraint("Horizontal", 26, 2, 37, 2),
    Sketcher.Constraint("Equal", 18, 20),
    Sketcher.Constraint("Equal", 22, 24),
    Sketcher.Constraint("Equal", 26, 28),
    Sketcher.Constraint("Equal", 30, 32),
    Sketcher.Constraint("Equal", 34, 36),
    Sketcher.Constraint("Equal", 3, 0),
    Sketcher.Constraint("Equal", 38, 17),
    Sketcher.Constraint("Equal", 19, 21),
    Sketcher.Constraint("Equal", 4, 5),
    Sketcher.Constraint("Equal", 7, 8),
    Sketcher.Constraint("Equal", 11, 12),
    Sketcher.Constraint("DistanceX", 16, 2, 16, 1, Q("18 mm")),
    Sketcher.Constraint("Distance", 4, Q("18 mm")),
    Sketcher.Constraint("DistanceX", 5, 2, 8, 2, Q("18.6 mm")),
    Sketcher.Constraint("DistanceX", 8, 2, 12, 2, Q("18.6 mm")),
    Sketcher.Constraint("DistanceX", 23, 2, 24, 2, Q("0.6 mm")),
    Sketcher.Constraint("DistanceX", 19, 2, 28, 2, Q("0.6 mm")),
    Sketcher.Constraint("DistanceX", 31, 2, 32, 2, Q("0.6 mm")),
    Sketcher.Constraint("DistanceX", 27, 2, 36, 2, Q("0.6 mm")),
    Sketcher.Constraint("DistanceX", 1, 1, 1, 2, Q("78.072 mm")),
    Sketcher.Constraint("DistanceX", 20, 2, -1, 1, Q("27.62 mm")),
    Sketcher.Constraint("DistanceY", -1, 1, 20, 2, Q("18.63 mm")),
    Sketcher.Constraint("DistanceX", 0, 2, -1, 1, Q("39.036 mm")),
    Sketcher.Constraint("DistanceY", -1, 1, 0, 2, Q("67.286 mm")),
    Sketcher.Constraint("DistanceY", -1, 1, 7, 2, Q("55.8699 mm")),
    Sketcher.Constraint("DistanceX", 4, 2, -1, 1, Q("27.613129 mm")),
    Sketcher.Constraint("DistanceX", 7, 2, -1, 1, Q("27.600271 mm")),
    Sketcher.Constraint("DistanceX", 4, 2, 16, 2, Q("0.002992 mm")),
    Sketcher.Constraint("DistanceY", 16, 2, 4, 2, Q("0.623169 mm")),
])
pocket5 = body.newObject("PartDesign::Pocket", "Pocket004")
pocket5.Profile = sketch6
pocket5.Length = 0.5
pocket5.Reversed = True

# Sketch on XZ plane
sketch7 = body.newObject("Sketcher::SketchObject", "Sketch006")
sketch7.AttachmentSupport = (doc.getObject("XZ_Plane"), [""])
sketch7.MapMode = "FlatFace"
sketch7.AttachmentOffset = App.Placement(Vector(0, 0, 28.25), App.Rotation())
add_polygon(sketch7, [(-28, 56), (-28, 0), (28, 0), (28, 56)])  # lines 0-3
add_polygon(sketch7, [(-10, 1), (-28, 1), (-28, 19), (-10, 19)])  # lines 4-7
add_polygon(sketch7, [(9, 1), (-9, 1), (-9, 19), (9, 19)])  # lines 8-11
add_polygon(sketch7, [(-10, 19), (-28, 19), (-28, 37), (-10, 37)])  # lines 12-15
add_polygon(sketch7, [(28, 1), (10, 1), (10, 19), (28, 19)])  # lines 16-19
add_polygon(sketch7, [(9, 19), (-9, 19), (-9, 37), (9, 37)])  # lines 20-23
add_polygon(sketch7, [(28, 19), (10, 19), (10, 37), (28, 37)])  # lines 24-27
add_polygon(sketch7, [(-28, 56), (-10, 56), (-10, 38), (-28, 38)])  # lines 28-31
add_polygon(sketch7, [(-9, 38), (-9, 56), (9, 56), (9, 38)])  # lines 32-35
add_polygon(sketch7, [(10, 38), (10, 56), (28, 56), (28, 38)])  # lines 36-39
sketch7.addConstraint([
    Sketcher.Constraint("Vertical", 0),
    Sketcher.Constraint("Horizontal", 1),
    Sketcher.Constraint("Vertical", 2),
    Sketcher.Constraint("Horizontal", 3),
    Sketcher.Constraint("Horizontal", 4),
    Sketcher.Constraint("Vertical", 5),
    Sketcher.Constraint("Horizontal", 6),
    Sketcher.Constraint("Vertical", 7),
    Sketcher.Constraint("Horizontal", 8),
    Sketcher.Constraint("Vertical", 9),
    Sketcher.Constraint("Horizontal", 10),
    Sketcher.Constraint("Vertical", 11),
    Sketcher.Constraint("Horizontal", 12),
    Sketcher.Constraint("Vertical", 13),
    Sketcher.Constraint("Horizontal", 14),
    Sketcher.Constraint("Vertical", 15),
    Sketcher.Constraint("Horizontal", 16),
    Sketcher.Constraint("Vertical", 17),
    Sketcher.Constraint("Horizontal", 18),
    Sketcher.Constraint("Vertical", 19),
    Sketcher.Constraint("Horizontal", 20),
    Sketcher.Constraint("Vertical", 21),
    Sketcher.Constraint("Horizontal", 22),
    Sketcher.Constraint("Vertical", 23),
    Sketcher.Constraint("Horizontal", 24),
    Sketcher.Constraint("Vertical", 25),
    Sketcher.Constraint("Horizontal", 26),
    Sketcher.Constraint("Vertical", 27),
    Sketcher.Constraint("Perpendicular", 28, 29),
    Sketcher.Constraint("Perpendicular", 29, 30),
    Sketcher.Constraint("Perpendicular", 30, 31),
    Sketcher.Constraint("Parallel", 31, 32),
    Sketcher.Constraint("Perpendicular", 32, 33),
    Sketcher.Constraint("Perpendicular", 33, 34),
    Sketcher.Constraint("Perpendicular", 34, 35),
    Sketcher.Constraint("Perpendicular", 35, 36),
    Sketcher.Constraint("Perpendicular", 36, 37),
    Sketcher.Constraint("Perpendicular", 37, 38),
    Sketcher.Constraint("Perpendicular", 38, 39),
    Sketcher.Constraint("Horizontal", 7, 2, 8, 2),
    Sketcher.Constraint("Horizontal", 6, 2, 9, 2),
    Sketcher.Constraint("Horizontal", 11, 2, 16, 2),
    Sketcher.Constraint("Horizontal", 10, 2, 17, 2),
    Sketcher.Constraint("Horizontal", 15, 2, 20, 2),
    Sketcher.Constraint("Horizontal", 14, 2, 21, 2),
    Sketcher.Constraint("Horizontal", 23, 2, 24, 2),
    Sketcher.Constraint("Horizontal", 22, 2, 25, 2),
    Sketcher.Constraint("Horizontal", 31, 2, 32, 2),
    Sketcher.Constraint("Horizontal", 29, 2, 34, 2),
    Sketcher.Constraint("Horizontal", 32, 2, 36, 2),
    Sketcher.Constraint("Horizontal", 34, 2, 38, 2),
    Sketcher.Constraint("Equal", 6, 8),
    Sketcher.Constraint("Equal", 10, 12),
    Sketcher.Constraint("Equal", 14, 16),
    Sketcher.Constraint("Equal", 18, 20),
    Sketcher.Constraint("Equal", 22, 24),
    Sketcher.Constraint("Equal", 3, 0),
    Sketcher.Constraint("Equal", 26, 5),
    Sketcher.Constraint("Equal", 11, 13),
    Sketcher.Constraint("Equal", 28, 29),
    Sketcher.Constraint("Equal", 32, 33),
    Sketcher.Constraint("Equal", 36, 37),
    Sketcher.Constraint("DistanceX", 4, 2, 4, 1, Q("18 mm")),
    Sketcher.Constraint("Distance", 28, Q("18 mm")),
    Sketcher.Constraint("DistanceX", 1, 1, 1, 2, Q("55.5 mm")),
    Sketcher.Constraint("DistanceY", -1, 1, 2, 2, Q("56 mm")),
    Sketcher.Constraint("DistanceX", 7, 2, 8, 2, Q("0.6 mm")),
    Sketcher.Constraint("DistanceX", 11, 2, 16, 2, Q("0.6 mm")),
    Sketcher.Constraint("DistanceX", 15, 2, 20, 2, Q("0.6 mm")),
    Sketcher.Constraint("DistanceX", 23, 2, 24, 2, Q("0.6 mm")),
    Sketcher.Constraint("DistanceX", 31, 2, 32, 2, Q("18.6 mm")),
    Sketcher.Constraint("DistanceX", 32, 2, 36, 2, Q("18.6 mm")),
    Sketcher.Constraint("DistanceX", 0, 2, -1, 1, Q("27.75 mm")),
    Sketcher.Constraint("DistanceX", 4, 2, -1, 1, Q("27.62 mm")),
    Sketcher.Constraint("DistanceY", -1, 1, 4, 2, Q("0.63 mm")),
    Sketcher.Constraint("DistanceY", -1, 1, 31, 2, Q("55.8699 mm")),
    Sketcher.Constraint("DistanceX", 30, 2, -1, 1, Q("27.613129 mm")),
    Sketcher.Constraint("DistanceX", 31, 2, -1, 1, Q("27.600271 mm")),
    Sketcher.Constraint("DistanceX", 14, 2, 28, 2, Q("0.009861 mm")),
    Sketcher.Constraint("DistanceY", 14, 2, 29, 2, Q("0.610312 mm")),
])
pocket6 = body.newObject("PartDesign::Pocket", "Pocket005")
pocket6.Profile = sketch7
pocket6.Length = 0.5

# Sketch on YZ plane
sketch8 = body.newObject("Sketcher::SketchObject", "Sketch007")
sketch8.AttachmentSupport = (doc.getObject("YZ_Plane"), [""])
sketch8.MapMode = "FlatFace"
sketch8.AttachmentOffset = App.Placement(Vector(0, 0, 28.25), App.Rotation())
sketch8.addGeometry(Part.Circle(Vector(0, 28.2, 0), Vector(0, 0, 1), 1), False)
sketch8.addConstraint([
    Sketcher.Constraint("PointOnObject", 0, 3, -2),
    Sketcher.Constraint("Diameter", 0, Q("2 mm")),
    Sketcher.Constraint("DistanceY", -1, 1, 0, 3, Q("28.25 mm")),
])
pocket7 = body.newObject("PartDesign::Pocket", "Pocket006")
pocket7.Profile = sketch8
pocket7.Length = 10

# Sketch on XY plane
sketch9 = body.newObject("Sketcher::SketchObject", "Sketch008")
sketch9.AttachmentSupport = (doc.getObject("XY_Plane"), [""])
sketch9.MapMode = "FlatFace"
sketch9.addGeometry(Part.Circle(Vector(0, 0, 0), Vector(0, 0, 1), 1), False)
sketch9.addConstraint([
    Sketcher.Constraint("Coincident", 0, 3, -1, 1),
    Sketcher.Constraint("Diameter", 0, Q("2 mm")),
])
pocket8 = body.newObject("PartDesign::Pocket", "Pocket007")
pocket8.Profile = sketch9
pocket8.Length = 10
pocket8.Reversed = True

# Sketch on XZ plane
sketch10 = body.newObject("Sketcher::SketchObject", "Sketch009")
sketch10.AttachmentSupport = (doc.getObject("XZ_Plane"), [""])
sketch10.MapMode = "FlatFace"
sketch10.AttachmentOffset = App.Placement(Vector(0, 0, -28.25), App.Rotation())
sketch10.addGeometry(Part.Circle(Vector(0, 28.2, 0), Vector(0, 0, 1), 1), False)
sketch10.addConstraint([
    Sketcher.Constraint("PointOnObject", 0, 3, -2),
    Sketcher.Constraint("Diameter", 0, Q("2 mm")),
    Sketcher.Constraint("DistanceY", -1, 1, 0, 3, Q("28.25 mm")),
])
pocket9 = body.newObject("PartDesign::Pocket", "Pocket008")
pocket9.Profile = sketch10
pocket9.Length = 10
pocket9.Reversed = True

doc.recompute()
